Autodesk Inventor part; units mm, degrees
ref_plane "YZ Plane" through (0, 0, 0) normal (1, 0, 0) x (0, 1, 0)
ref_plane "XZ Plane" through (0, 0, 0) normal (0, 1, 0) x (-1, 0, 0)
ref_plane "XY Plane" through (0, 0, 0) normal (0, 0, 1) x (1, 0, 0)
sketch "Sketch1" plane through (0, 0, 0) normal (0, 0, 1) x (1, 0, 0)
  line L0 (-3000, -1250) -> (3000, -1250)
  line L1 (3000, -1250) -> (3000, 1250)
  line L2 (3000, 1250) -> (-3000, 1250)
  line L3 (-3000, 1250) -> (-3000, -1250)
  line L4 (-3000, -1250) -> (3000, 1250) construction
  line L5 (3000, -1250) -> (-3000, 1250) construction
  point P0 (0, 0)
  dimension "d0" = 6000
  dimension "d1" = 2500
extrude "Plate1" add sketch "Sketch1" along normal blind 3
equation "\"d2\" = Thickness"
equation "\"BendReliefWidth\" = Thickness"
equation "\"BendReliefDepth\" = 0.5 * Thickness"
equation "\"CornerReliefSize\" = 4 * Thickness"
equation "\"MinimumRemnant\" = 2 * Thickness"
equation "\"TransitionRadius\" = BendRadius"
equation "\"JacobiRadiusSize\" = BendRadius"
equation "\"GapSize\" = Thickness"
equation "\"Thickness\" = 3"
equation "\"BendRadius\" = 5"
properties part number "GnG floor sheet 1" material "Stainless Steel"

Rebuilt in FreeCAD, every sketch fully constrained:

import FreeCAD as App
import Part
import Sketcher

V = App.Vector


def add_polygon(sketch, points):
    """Adds a closed chain of lines whose ends are joined by coincident constraints."""
    first, n = sketch.GeometryCount, len(points)
    for a, b in zip(points, points[1:] + points[:1]):
        sketch.addGeometry(Part.LineSegment(App.Vector(*a, 0), App.Vector(*b, 0)), False)
    for i in range(n):
        sketch.addConstraint(Sketcher.Constraint("Coincident", first + i, 2, first + (i + 1) % n, 1))

doc = App.newDocument("Part")
body = doc.addObject("PartDesign::Body", "Body")

sketch1 = body.newObject("Sketcher::SketchObject", "Sketch")
sketch1.AttachmentSupport = (doc.getObject("XY_Plane"), [""])
sketch1.MapMode = "FlatFace"
add_polygon(sketch1, [(-3000, 1250), (-3000, -1250), (3000, -1250), (3000, 1250)])
sketch1.addConstraint([
    Sketcher.Constraint("Vertical", 0),
    Sketcher.Constraint("Horizontal", 1),
    Sketcher.Constraint("Vertical", 2),
    Sketcher.Constraint("Horizontal", 3),
    Sketcher.Constraint("Symmetric", 0, 2, 2, 2, -1, 1),
    Sketcher.Constraint("DistanceX", 1, 1, 1, 2, 6000.0),
    Sketcher.Constraint("DistanceY", 0, 2, 0, 1, 2500.0),
])
pad1 = body.newObject("PartDesign::Pad", "Pad")
pad1.Profile = sketch1
pad1.Length = 3

doc.recompute()
